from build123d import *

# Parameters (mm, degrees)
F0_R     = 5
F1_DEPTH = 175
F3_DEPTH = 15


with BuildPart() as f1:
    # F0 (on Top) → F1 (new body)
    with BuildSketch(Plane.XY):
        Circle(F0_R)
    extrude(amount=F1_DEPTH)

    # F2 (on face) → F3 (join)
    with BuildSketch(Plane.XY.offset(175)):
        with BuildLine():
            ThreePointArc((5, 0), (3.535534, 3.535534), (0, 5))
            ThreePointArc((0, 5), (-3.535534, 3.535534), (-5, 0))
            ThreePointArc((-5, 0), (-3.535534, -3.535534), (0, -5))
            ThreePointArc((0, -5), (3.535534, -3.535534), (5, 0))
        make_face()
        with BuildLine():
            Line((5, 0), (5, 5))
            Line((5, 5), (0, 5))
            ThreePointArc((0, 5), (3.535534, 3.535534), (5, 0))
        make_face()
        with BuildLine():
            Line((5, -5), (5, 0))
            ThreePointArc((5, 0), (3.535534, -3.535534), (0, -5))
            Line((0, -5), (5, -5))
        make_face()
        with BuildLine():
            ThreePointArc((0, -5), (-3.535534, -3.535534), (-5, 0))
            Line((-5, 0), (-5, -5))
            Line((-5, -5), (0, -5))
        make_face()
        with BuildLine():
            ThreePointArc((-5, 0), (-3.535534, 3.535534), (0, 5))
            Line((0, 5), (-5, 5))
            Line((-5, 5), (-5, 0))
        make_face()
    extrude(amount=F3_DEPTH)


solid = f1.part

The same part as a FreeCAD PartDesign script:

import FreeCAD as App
import Part
import Sketcher

V = App.Vector
Q = App.Units.Quantity

doc = App.newDocument("Part")
body = doc.addObject("PartDesign::Body", "Body")

sketch1 = body.newObject("Sketcher::SketchObject", "Sketch")
sketch1.AttachmentSupport = (doc.getObject("XY_Plane"), [""])
sketch1.MapMode = "FlatFace"
sketch1.addGeometry(Part.Circle(V(0, 0, 0), V(0, 0, 1), 5), False)
sketch1.addConstraint([
    Sketcher.Constraint("Coincident", 0, 3, -1, 1),
    Sketcher.Constraint("Diameter", 0, Q("10 mm")),
])
pad1 = body.newObject("PartDesign::Pad", "Pad")
pad1.Profile = sketch1
pad1.Length = 175

sketch2 = body.newObject("Sketcher::SketchObject", "Sketch001")
sketch2.AttachmentSupport = (doc.getObject("XY_Plane"), [""])
sketch2.MapMode = "FlatFace"
sketch2.AttachmentOffset = App.Placement(V(0, 0, 175), App.Rotation())
sketch2.addGeometry([
    Part.LineSegment(V(-5, -5, 0), V(5, -5, 0)),
    Part.LineSegment(V(5, -5, 0), V(5, 5, 0)),
    Part.LineSegment(V(5, 5, 0), V(-5, 5, 0)),
    Part.LineSegment(V(-5, 5, 0), V(-5, -5, 0)),
], False)
sketch2.addConstraint([
    Sketcher.Constraint("Coincident", 0, 2, 1, 1),
    Sketcher.Constraint("Coincident", 1, 2, 2, 1),
    Sketcher.Constraint("Coincident", 2, 2, 3, 1),
    Sketcher.Constraint("Coincident", 3, 2, 0, 1),
    Sketcher.Constraint("Horizontal", 0),
    Sketcher.Constraint("Vertical", 1),
    Sketcher.Constraint("Horizontal", 2),
    Sketcher.Constraint("Vertical", 3),
    Sketcher.Constraint("Symmetric", 0, 2, 2, 2, -1, 1),
    Sketcher.Constraint("Equal", 2, 1),
    Sketcher.Constraint("DistanceX", 0, 1, 0, 2, Q("10 mm")),
])
pad2 = body.newObject("PartDesign::Pad", "Pad001")
pad2.Profile = sketch2
pad2.Length = 15

doc.recompute()
